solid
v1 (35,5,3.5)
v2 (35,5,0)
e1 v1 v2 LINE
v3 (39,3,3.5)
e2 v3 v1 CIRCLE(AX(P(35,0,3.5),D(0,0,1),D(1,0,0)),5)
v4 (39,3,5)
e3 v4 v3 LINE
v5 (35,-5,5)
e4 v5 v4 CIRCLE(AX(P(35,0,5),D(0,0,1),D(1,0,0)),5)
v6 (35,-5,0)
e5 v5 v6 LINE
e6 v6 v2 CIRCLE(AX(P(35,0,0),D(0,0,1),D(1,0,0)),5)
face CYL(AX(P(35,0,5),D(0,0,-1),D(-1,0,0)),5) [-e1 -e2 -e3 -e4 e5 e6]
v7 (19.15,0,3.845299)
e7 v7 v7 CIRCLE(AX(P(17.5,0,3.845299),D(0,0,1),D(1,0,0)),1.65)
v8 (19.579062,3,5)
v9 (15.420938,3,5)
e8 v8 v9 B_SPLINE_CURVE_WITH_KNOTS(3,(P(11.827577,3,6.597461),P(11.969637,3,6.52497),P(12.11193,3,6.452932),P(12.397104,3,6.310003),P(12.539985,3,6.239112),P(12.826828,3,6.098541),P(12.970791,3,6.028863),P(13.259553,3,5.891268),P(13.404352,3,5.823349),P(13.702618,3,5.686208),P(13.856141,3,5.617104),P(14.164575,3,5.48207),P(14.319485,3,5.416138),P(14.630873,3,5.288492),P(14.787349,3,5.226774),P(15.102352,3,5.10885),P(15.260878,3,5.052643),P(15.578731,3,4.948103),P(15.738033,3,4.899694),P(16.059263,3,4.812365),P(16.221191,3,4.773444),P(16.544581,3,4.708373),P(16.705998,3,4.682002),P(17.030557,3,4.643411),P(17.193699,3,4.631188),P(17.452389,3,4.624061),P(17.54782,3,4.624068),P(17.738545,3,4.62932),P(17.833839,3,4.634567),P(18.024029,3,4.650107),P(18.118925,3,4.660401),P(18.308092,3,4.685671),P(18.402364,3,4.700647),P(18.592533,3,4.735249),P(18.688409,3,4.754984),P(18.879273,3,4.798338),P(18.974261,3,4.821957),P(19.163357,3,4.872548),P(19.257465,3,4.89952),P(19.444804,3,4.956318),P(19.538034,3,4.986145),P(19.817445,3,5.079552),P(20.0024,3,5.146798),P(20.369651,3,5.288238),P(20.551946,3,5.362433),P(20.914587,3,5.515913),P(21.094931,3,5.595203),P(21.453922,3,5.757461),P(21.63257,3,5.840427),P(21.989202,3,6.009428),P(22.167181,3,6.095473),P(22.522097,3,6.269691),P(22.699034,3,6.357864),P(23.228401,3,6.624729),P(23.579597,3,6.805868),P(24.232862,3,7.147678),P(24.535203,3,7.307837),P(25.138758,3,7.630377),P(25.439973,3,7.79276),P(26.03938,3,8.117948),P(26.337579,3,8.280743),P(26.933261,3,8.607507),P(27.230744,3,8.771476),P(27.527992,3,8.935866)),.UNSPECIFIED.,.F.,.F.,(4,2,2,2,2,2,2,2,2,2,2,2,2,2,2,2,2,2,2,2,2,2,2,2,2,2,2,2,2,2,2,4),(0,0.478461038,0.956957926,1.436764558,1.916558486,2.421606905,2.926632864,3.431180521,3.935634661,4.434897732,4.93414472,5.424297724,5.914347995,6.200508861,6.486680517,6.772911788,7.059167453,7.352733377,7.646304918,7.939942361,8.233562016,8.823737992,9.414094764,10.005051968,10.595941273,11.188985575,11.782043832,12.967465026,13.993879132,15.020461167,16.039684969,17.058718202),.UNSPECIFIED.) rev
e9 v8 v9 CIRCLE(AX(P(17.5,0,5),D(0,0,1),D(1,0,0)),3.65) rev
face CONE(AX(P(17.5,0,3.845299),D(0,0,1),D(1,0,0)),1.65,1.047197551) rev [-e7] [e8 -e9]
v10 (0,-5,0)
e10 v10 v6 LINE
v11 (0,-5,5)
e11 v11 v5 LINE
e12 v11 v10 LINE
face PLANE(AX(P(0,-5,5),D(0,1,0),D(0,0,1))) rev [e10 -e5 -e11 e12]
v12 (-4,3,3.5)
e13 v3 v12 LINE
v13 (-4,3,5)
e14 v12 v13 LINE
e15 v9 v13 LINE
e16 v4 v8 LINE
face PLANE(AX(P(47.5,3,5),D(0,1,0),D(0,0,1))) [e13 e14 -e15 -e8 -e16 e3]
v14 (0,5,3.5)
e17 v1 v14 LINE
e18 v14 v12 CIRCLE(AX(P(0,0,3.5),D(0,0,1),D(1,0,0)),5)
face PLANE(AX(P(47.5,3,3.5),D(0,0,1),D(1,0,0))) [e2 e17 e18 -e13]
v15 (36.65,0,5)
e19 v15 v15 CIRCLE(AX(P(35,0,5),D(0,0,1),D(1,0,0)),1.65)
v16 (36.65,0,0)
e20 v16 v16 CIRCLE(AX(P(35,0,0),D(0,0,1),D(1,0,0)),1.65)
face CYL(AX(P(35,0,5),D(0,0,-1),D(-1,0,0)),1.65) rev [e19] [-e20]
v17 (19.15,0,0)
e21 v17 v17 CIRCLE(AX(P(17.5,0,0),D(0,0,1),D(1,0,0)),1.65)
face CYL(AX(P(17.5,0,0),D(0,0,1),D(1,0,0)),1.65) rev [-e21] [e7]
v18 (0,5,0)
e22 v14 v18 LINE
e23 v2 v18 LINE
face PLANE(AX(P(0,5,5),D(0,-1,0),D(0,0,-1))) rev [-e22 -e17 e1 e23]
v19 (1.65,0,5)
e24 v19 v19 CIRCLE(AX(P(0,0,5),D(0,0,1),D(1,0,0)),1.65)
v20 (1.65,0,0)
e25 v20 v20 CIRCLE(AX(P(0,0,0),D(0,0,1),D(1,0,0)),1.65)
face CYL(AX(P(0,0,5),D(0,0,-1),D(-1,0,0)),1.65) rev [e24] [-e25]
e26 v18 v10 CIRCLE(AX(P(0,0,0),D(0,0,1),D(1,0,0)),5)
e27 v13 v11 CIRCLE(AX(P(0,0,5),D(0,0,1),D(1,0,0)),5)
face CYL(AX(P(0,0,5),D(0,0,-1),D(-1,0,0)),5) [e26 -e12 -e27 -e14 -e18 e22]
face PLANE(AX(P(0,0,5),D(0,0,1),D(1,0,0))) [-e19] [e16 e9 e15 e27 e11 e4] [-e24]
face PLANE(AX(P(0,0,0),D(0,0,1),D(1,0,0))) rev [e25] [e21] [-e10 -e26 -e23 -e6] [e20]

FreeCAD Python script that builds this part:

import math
import FreeCAD as App
import Part
import Sketcher
from FreeCAD import Vector
Q = App.Units.Quantity


def edges_at(feature, points):
    """Names of the edges that pass closest to the given points."""
    edges = feature.Shape.Edges
    near = lambda p: min(range(len(edges)), key=lambda i: edges[i].distToShape(Part.Vertex(*p))[0])
    return sorted({f"Edge{near(p) + 1}" for p in points})


def add_polygon(sketch, points):
    """Adds a closed chain of lines whose ends are joined by coincident constraints."""
    first, n = sketch.GeometryCount, len(points)
    for a, b in zip(points, points[1:] + points[:1]):
        sketch.addGeometry(Part.LineSegment(App.Vector(*a, 0), App.Vector(*b, 0)), False)
    for i in range(n):
        sketch.addConstraint(Sketcher.Constraint("Coincident", first + i, 2, first + (i + 1) % n, 1))

doc = App.newDocument("Part")
params = doc.addObject("Spreadsheet::Sheet", "Params")
for row, (alias, value) in enumerate([
    ("sketch1_radius", "5 mm"),
    ("sketch1_diameter", "3.3 mm"),
    ("sketch1_width", "35 mm"),
    ("pad1_length", "5 mm"),
    ("sketch2_diameter", "3.3 mm"),
    ("pocket1_length", "5 mm"),
    ("chamfer_size", "2 mm"),
    ("chamfer_size2", "1.154701 mm"),
    ("sketch3_width", "2 mm"),
    ("sketch3_height", "1.5 mm"),
    ("pocket2_length", "95 mm"),
], start=1):
    params.set(f"A{row}", alias)
    params.set(f"B{row}", "=" + value)
    params.setAlias(f"B{row}", alias)

body = doc.addObject("PartDesign::Body", "Body")

# Sketch on XY plane
sketch1 = body.newObject("Sketcher::SketchObject", "Sketch")
sketch1.AttachmentSupport = (doc.getObject("XY_Plane"), [""])
sketch1.MapMode = "FlatFace"
sketch1.addGeometry(Part.LineSegment(Vector(35, 5, 0), Vector(0, 5, 0)), False)
sketch1.addGeometry(Part.ArcOfCircle(Part.Circle(Vector(0, 0, 0), Vector(0, 0, 1), 5), math.radians(90), math.radians(270)), False)
sketch1.addGeometry(Part.LineSegment(Vector(0, -5, 0), Vector(35, -5, 0)), False)
sketch1.addGeometry(Part.ArcOfCircle(Part.Circle(Vector(35, 0, 0), Vector(0, 0, 1), 5), math.radians(-90), math.radians(90)), False)
sketch1.addGeometry(Part.Circle(Vector(35, 0, 0), Vector(0, 0, 1), 1.6), False)
sketch1.addGeometry(Part.Circle(Vector(0, 0, 0), Vector(0, 0, 1), 1.6), False)
sketch1.addConstraint(Sketcher.Constraint("Tangent", 0, 2, 1, 1))
sketch1.addConstraint(Sketcher.Constraint("Tangent", 1, 2, 2, 1))
sketch1.addConstraint(Sketcher.Constraint("Tangent", 2, 2, 3, 1))
sketch1.addConstraint(Sketcher.Constraint("Tangent", 3, 2, 0, 1))
sketch1.addConstraint(Sketcher.Constraint("Horizontal", 0))
sketch1.addConstraint(Sketcher.Constraint("Horizontal", 2))
sketch1.addConstraint(Sketcher.Constraint("Coincident", 1, 3, -1, 1))
sketch1.addConstraint(Sketcher.Constraint("Coincident", 5, 3, -1, 1))
sketch1.addConstraint(Sketcher.Constraint("Coincident", 4, 3, 3, 3))
sketch1.addConstraint(Sketcher.Constraint("Equal", 4, 5))
sketch1.addConstraint(Sketcher.Constraint("Radius", 1, Q("5 mm")))
sketch1.addConstraint(Sketcher.Constraint("Diameter", 4, Q("3.3 mm")))
sketch1.addConstraint(Sketcher.Constraint("DistanceX", 0, 2, 0, 1, Q("35 mm")))
sketch1.setExpression("Constraints[10]", "Params.sketch1_radius")
sketch1.setExpression("Constraints[11]", "Params.sketch1_diameter")
sketch1.setExpression("Constraints[12]", "Params.sketch1_width")
pad1 = body.newObject("PartDesign::Pad", "Pad")
pad1.Profile = sketch1
pad1.setExpression("Length", "Params.pad1_length")

# Sketch on XY plane
sketch2 = body.newObject("Sketcher::SketchObject", "Sketch001")
sketch2.AttachmentSupport = (doc.getObject("XY_Plane"), [""])
sketch2.MapMode = "FlatFace"
sketch2.AttachmentOffset = App.Placement(Vector(0, 0, 5), App.Rotation())
sketch2.addGeometry(Part.Circle(Vector(17.5, 0, 0), Vector(0, 0, 1), 1.6), False)
sketch2.addConstraint(Sketcher.Constraint("PointOnObject", 0, 3, -1))
sketch2.addConstraint(Sketcher.Constraint("Diameter", 0, Q("3.3 mm")))
sketch2.addConstraint(Sketcher.Constraint("DistanceX", -1, 1, 0, 3, Q("17.5 mm")))
sketch2.setExpression("Constraints[1]", "Params.sketch2_diameter")
pocket1 = body.newObject("PartDesign::Pocket", "Pocket")
pocket1.Profile = sketch2
pocket1.setExpression("Length", "Params.pocket1_length")
doc.recompute()

chamfer = body.newObject("PartDesign::Chamfer", "Chamfer")
chamfer.Base = (pocket1, edges_at(pocket1, [(15.85, 0, 5)]))
chamfer.ChamferType = "Two distances"
chamfer.setExpression("Size", "Params.chamfer_size")
chamfer.setExpression("Size2", "Params.chamfer_size2")

# Sketch on YZ plane
sketch3 = body.newObject("Sketcher::SketchObject", "Sketch002")
sketch3.AttachmentSupport = (doc.getObject("YZ_Plane"), [""])
sketch3.MapMode = "FlatFace"
add_polygon(sketch3, [(5, 5), (3, 5), (3, 3.5), (5, 3.5)])  # lines 0-3
sketch3.addConstraint(Sketcher.Constraint("Horizontal", 0))
sketch3.addConstraint(Sketcher.Constraint("Vertical", 1))
sketch3.addConstraint(Sketcher.Constraint("Horizontal", 2))
sketch3.addConstraint(Sketcher.Constraint("Vertical", 3))
sketch3.addConstraint(Sketcher.Constraint("DistanceX", 0, 2, 0, 1, Q("2 mm")))
sketch3.addConstraint(Sketcher.Constraint("DistanceY", 1, 2, 1, 1, Q("1.5 mm")))
sketch3.addConstraint(Sketcher.Constraint("DistanceX", -1, 1, 0, 2, Q("3 mm")))
sketch3.addConstraint(Sketcher.Constraint("DistanceY", -1, 1, 0, 2, Q("5 mm")))
sketch3.setExpression("Constraints[8]", "Params.sketch3_width")
sketch3.setExpression("Constraints[9]", "Params.sketch3_height")
pocket2 = body.newObject("PartDesign::Pocket", "Pocket001")
pocket2.Profile = sketch3
pocket2.setExpression("Length", "Params.pocket2_length")
pocket2.Midplane = True

doc.recompute()
